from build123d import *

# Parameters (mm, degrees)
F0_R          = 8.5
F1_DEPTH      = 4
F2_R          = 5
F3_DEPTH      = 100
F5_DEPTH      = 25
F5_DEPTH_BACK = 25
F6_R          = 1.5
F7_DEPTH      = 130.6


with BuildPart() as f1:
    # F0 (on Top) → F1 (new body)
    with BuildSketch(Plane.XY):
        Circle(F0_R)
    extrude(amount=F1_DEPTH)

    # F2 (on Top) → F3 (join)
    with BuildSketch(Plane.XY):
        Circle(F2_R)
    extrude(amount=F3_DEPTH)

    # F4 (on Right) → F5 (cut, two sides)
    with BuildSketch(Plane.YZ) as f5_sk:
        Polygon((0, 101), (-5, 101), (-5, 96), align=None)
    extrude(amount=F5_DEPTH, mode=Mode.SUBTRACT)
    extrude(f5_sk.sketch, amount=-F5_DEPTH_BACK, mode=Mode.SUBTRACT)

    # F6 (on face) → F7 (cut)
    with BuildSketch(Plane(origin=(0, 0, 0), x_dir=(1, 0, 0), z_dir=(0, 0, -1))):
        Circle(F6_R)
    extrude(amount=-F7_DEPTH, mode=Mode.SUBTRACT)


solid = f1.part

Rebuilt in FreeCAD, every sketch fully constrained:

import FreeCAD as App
import Part
import Sketcher
from FreeCAD import Vector
Q = App.Units.Quantity


def add_polygon(sketch, points):
    """Adds a closed chain of lines whose ends are joined by coincident constraints."""
    first, n = sketch.GeometryCount, len(points)
    for a, b in zip(points, points[1:] + points[:1]):
        sketch.addGeometry(Part.LineSegment(App.Vector(*a, 0), App.Vector(*b, 0)), False)
    for i in range(n):
        sketch.addConstraint(Sketcher.Constraint("Coincident", first + i, 2, first + (i + 1) % n, 1))

doc = App.newDocument("Part")
body = doc.addObject("PartDesign::Body", "Body")

sketch1 = body.newObject("Sketcher::SketchObject", "Sketch")
sketch1.AttachmentSupport = (doc.getObject("XY_Plane"), [""])
sketch1.MapMode = "FlatFace"
sketch1.addGeometry(Part.Circle(Vector(0, 0, 0), Vector(0, 0, 1), 8), False)
sketch1.addConstraint([
    Sketcher.Constraint("Coincident", 0, 3, -1, 1),
    Sketcher.Constraint("Diameter", 0, Q("17 mm")),
])
pad1 = body.newObject("PartDesign::Pad", "Pad")
pad1.Profile = sketch1
pad1.Length = 4

sketch2 = body.newObject("Sketcher::SketchObject", "Sketch001")
sketch2.AttachmentSupport = (doc.getObject("XY_Plane"), [""])
sketch2.MapMode = "FlatFace"
sketch2.addGeometry(Part.Circle(Vector(0, 0, 0), Vector(0, 0, 1), 5), False)
sketch2.addConstraint([
    Sketcher.Constraint("Coincident", 0, 3, -1, 1),
    Sketcher.Constraint("Diameter", 0, Q("10 mm")),
])
pad2 = body.newObject("PartDesign::Pad", "Pad001")
pad2.Profile = sketch2
pad2.Length = 100

sketch3 = body.newObject("Sketcher::SketchObject", "Sketch002")
sketch3.AttachmentSupport = (doc.getObject("YZ_Plane"), [""])
sketch3.MapMode = "FlatFace"
add_polygon(sketch3, [(0, 101), (-5, 101), (-5, 96)])
sketch3.addConstraint([
    Sketcher.Constraint("Horizontal", 0),
    Sketcher.Constraint("Vertical", 1),
    Sketcher.Constraint("PointOnObject", 2, 2, -2),
    Sketcher.Constraint("Equal", 0, 1),
    Sketcher.Constraint("DistanceX", 0, 2, 0, 1, Q("5 mm")),
    Sketcher.Constraint("DistanceY", -1, 1, 0, 2, Q("101 mm")),
])
pocket1 = body.newObject("PartDesign::Pocket", "Pocket")
pocket1.Profile = sketch3
pocket1.Type = "ThroughAll"
pocket1.Midplane = True

sketch4 = body.newObject("Sketcher::SketchObject", "Sketch003")
sketch4.AttachmentSupport = (doc.getObject("XY_Plane"), [""])
sketch4.MapMode = "FlatFace"
sketch4.addGeometry(Part.Circle(Vector(0, 0, 0), Vector(0, 0, 1), 1.5), False)
sketch4.addConstraint([
    Sketcher.Constraint("Coincident", 0, 3, -1, 1),
    Sketcher.Constraint("Diameter", 0, Q("3 mm")),
])
pocket2 = body.newObject("PartDesign::Pocket", "Pocket001")
pocket2.Profile = sketch4
pocket2.Length = 130.6
pocket2.Reversed = True

doc.recompute()
